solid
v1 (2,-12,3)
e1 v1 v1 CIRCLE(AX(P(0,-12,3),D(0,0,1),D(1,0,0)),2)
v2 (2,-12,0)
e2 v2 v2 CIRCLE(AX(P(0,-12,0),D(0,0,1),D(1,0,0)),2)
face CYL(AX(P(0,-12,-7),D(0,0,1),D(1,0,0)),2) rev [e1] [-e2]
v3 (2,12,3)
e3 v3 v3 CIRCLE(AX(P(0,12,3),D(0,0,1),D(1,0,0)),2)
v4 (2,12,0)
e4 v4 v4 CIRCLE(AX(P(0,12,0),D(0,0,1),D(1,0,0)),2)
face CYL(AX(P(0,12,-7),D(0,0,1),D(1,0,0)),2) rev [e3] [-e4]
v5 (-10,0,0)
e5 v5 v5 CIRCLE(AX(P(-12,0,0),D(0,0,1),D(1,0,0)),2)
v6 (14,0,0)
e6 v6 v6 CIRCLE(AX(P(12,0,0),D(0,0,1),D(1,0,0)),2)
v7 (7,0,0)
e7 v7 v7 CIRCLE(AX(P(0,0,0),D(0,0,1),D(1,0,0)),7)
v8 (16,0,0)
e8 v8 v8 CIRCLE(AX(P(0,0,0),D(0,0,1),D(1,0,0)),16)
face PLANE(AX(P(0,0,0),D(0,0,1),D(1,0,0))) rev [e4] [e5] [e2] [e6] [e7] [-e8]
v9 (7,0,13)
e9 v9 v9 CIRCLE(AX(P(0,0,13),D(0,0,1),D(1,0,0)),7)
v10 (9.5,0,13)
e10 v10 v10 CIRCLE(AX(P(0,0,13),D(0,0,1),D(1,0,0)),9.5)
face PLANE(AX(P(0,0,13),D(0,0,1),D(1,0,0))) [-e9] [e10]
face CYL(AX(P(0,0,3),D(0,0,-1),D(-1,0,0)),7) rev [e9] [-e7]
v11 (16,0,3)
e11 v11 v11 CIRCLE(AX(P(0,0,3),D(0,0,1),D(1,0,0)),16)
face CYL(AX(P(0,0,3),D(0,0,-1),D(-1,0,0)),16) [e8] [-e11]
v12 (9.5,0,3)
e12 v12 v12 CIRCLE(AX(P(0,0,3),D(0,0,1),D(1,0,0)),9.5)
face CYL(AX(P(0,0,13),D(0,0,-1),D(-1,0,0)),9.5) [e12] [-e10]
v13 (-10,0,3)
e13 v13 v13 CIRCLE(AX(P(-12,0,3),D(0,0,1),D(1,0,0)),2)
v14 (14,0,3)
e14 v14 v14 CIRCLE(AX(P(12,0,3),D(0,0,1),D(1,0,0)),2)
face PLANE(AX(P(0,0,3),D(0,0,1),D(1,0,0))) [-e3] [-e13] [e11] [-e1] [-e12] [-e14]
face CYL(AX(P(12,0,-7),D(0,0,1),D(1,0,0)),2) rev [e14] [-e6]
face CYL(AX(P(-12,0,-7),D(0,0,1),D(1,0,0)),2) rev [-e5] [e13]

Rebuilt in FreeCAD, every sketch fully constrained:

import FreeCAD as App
import Part
import Sketcher
from FreeCAD import Vector

doc = App.newDocument("Part")
params = doc.addObject("Spreadsheet::Sheet", "Params")
for row, (alias, value) in enumerate([
    ("sketch1_diameter", "32 mm"),
    ("sketch1_diameter2", "14 mm"),
    ("pad1_length", "3 mm"),
    ("sketch2_diameter", "19 mm"),
    ("sketch2_diameter2", "14 mm"),
    ("pad2_length", "10 mm"),
    ("sketch3_diameter", "4 mm"),
    ("pocket1_length", "10 mm"),
], start=1):
    params.set(f"A{row}", alias)
    params.set(f"B{row}", "=" + value)
    params.setAlias(f"B{row}", alias)

body = doc.addObject("PartDesign::Body", "Body")

# Sketch on XY plane
sketch1 = body.newObject("Sketcher::SketchObject", "Sketch")
sketch1.AttachmentSupport = (doc.getObject("XY_Plane"), [""])
sketch1.MapMode = "FlatFace"
sketch1.addGeometry([
    Part.Circle(Vector(0, 0, 0), Vector(0, 0, 1), 16),
    Part.Circle(Vector(0, 0, 0), Vector(0, 0, 1), 7),
], False)
sketch1.addConstraint([
    Sketcher.Constraint("Coincident", 0, 3, -1, 1),
    Sketcher.Constraint("Coincident", 1, 3, -1, 1),
    Sketcher.Constraint("Diameter", 0, 32.0),
    Sketcher.Constraint("Diameter", 1, 14.0),
])
sketch1.setExpression("Constraints[2]", "Params.sketch1_diameter")
sketch1.setExpression("Constraints[3]", "Params.sketch1_diameter2")
pad1 = body.newObject("PartDesign::Pad", "Pad")
pad1.Profile = sketch1
pad1.setExpression("Length", "Params.pad1_length")

# Sketch on XY plane
sketch2 = body.newObject("Sketcher::SketchObject", "Sketch001")
sketch2.AttachmentSupport = (doc.getObject("XY_Plane"), [""])
sketch2.MapMode = "FlatFace"
sketch2.AttachmentOffset = App.Placement(Vector(0, 0, 3), App.Rotation())
sketch2.addGeometry([
    Part.Circle(Vector(0, 0, 0), Vector(0, 0, 1), 10),
    Part.Circle(Vector(0, 0, 0), Vector(0, 0, 1), 7),
], False)
sketch2.addConstraint([
    Sketcher.Constraint("Coincident", 0, 3, -1, 1),
    Sketcher.Constraint("Coincident", 1, 3, -1, 1),
    Sketcher.Constraint("Diameter", 0, 19.0),
    Sketcher.Constraint("Diameter", 1, 14.0),
])
sketch2.setExpression("Constraints[2]", "Params.sketch2_diameter")
sketch2.setExpression("Constraints[3]", "Params.sketch2_diameter2")
pad2 = body.newObject("PartDesign::Pad", "Pad001")
pad2.Profile = sketch2
pad2.setExpression("Length", "Params.pad2_length")

# Sketch on XY plane
sketch3 = body.newObject("Sketcher::SketchObject", "Sketch002")
sketch3.AttachmentSupport = (doc.getObject("XY_Plane"), [""])
sketch3.MapMode = "FlatFace"
sketch3.AttachmentOffset = App.Placement(Vector(0, 0, 3), App.Rotation())
sketch3.addGeometry([
    Part.Circle(Vector(0, -12, 0), Vector(0, 0, 1), 2),
    Part.Circle(Vector(-12, 0, 0), Vector(0, 0, 1), 2),
    Part.Circle(Vector(0, 12, 0), Vector(0, 0, 1), 2),
    Part.Circle(Vector(12, 0, 0), Vector(0, 0, 1), 2),
], False)
sketch3.addConstraint([
    Sketcher.Constraint("Equal", 0, 1),
    Sketcher.Constraint("Equal", 1, 2),
    Sketcher.Constraint("Equal", 2, 3),
    Sketcher.Constraint("Symmetric", 0, 3, 2, 3, -1, 1),
    Sketcher.Constraint("Symmetric", 1, 3, 3, 3, -1, 1),
    Sketcher.Constraint("PointOnObject", 0, 3, -2),
    Sketcher.Constraint("PointOnObject", 1, 3, -1),
    Sketcher.Constraint("Diameter", 0, 4.0),
    Sketcher.Constraint("DistanceY", 0, 3, -1, 1, 12.0),
    Sketcher.Constraint("DistanceX", 1, 3, -1, 1, 12.0),
])
sketch3.setExpression("Constraints[7]", "Params.sketch3_diameter")
pocket1 = body.newObject("PartDesign::Pocket", "Pocket")
pocket1.Profile = sketch3
pocket1.setExpression("Length", "Params.pocket1_length")

doc.recompute()
